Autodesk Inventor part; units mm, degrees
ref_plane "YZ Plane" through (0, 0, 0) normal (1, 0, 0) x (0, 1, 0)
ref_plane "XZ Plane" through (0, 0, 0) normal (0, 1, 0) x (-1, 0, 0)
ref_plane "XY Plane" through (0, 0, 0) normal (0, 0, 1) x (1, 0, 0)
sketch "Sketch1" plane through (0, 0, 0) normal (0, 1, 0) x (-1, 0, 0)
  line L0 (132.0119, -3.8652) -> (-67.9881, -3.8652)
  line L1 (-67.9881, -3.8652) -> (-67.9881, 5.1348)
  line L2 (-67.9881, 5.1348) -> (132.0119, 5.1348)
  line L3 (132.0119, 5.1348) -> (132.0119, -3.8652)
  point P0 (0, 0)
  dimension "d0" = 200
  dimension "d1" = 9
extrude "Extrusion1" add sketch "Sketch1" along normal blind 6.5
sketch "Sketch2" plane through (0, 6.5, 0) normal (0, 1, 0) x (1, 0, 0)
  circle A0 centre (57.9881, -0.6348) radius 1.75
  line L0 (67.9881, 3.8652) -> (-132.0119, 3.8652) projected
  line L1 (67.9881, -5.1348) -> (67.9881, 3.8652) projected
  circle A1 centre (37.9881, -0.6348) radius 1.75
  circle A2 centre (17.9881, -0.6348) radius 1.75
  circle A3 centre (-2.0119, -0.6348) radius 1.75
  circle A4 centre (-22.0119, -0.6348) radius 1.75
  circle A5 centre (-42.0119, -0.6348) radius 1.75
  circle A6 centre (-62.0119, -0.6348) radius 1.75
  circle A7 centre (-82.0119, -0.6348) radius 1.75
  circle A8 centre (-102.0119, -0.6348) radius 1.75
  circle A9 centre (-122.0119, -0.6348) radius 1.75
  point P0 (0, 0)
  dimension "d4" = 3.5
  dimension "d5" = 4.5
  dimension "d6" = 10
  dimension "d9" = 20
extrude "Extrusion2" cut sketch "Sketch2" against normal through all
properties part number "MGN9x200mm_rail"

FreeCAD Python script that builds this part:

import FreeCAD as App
import Part
import Sketcher
Q = App.Units.Quantity

doc = App.newDocument("Part")
body = doc.addObject("PartDesign::Body", "Body")

# Sketch on XZ plane
sketch1 = body.newObject("Sketcher::SketchObject", "Sketch")
sketch1.AttachmentSupport = (doc.getObject("XZ_Plane"), [""])
sketch1.MapMode = "FlatFace"
sketch1.addGeometry([
    Part.LineSegment(App.Vector(67.9881, -3.8652, 0), App.Vector(-132.0119, -3.8652, 0)),
    Part.LineSegment(App.Vector(-132.0119, -3.8652, 0), App.Vector(-132.0119, 5.1348, 0)),
    Part.LineSegment(App.Vector(-132.0119, 5.1348, 0), App.Vector(67.9881, 5.1348, 0)),
    Part.LineSegment(App.Vector(67.9881, 5.1348, 0), App.Vector(67.9881, -3.8652, 0)),
], False)
sketch1.addConstraint([
    Sketcher.Constraint("Coincident", 0, 2, 1, 1),
    Sketcher.Constraint("Coincident", 1, 2, 2, 1),
    Sketcher.Constraint("Coincident", 2, 2, 3, 1),
    Sketcher.Constraint("Coincident", 3, 2, 0, 1),
    Sketcher.Constraint("Horizontal", 0),
    Sketcher.Constraint("Vertical", 1),
    Sketcher.Constraint("Horizontal", 2),
    Sketcher.Constraint("Vertical", 3),
    Sketcher.Constraint("DistanceX", 0, 2, 0, 1, Q("200 mm")),
    Sketcher.Constraint("DistanceY", 1, 1, 1, 2, Q("9 mm")),
    Sketcher.Constraint("DistanceX", 0, 2, -1, 1, Q("132.012 mm")),
    Sketcher.Constraint("DistanceY", 0, 2, -1, 1, Q("3.8652 mm")),
])
pad1 = body.newObject("PartDesign::Pad", "Pad")
pad1.Profile = sketch1
pad1.Length = 6.5
pad1.Reversed = True

# Sketch on XZ plane
sketch2 = body.newObject("Sketcher::SketchObject", "Sketch001")
sketch2.AttachmentSupport = (doc.getObject("XZ_Plane"), [""])
sketch2.MapMode = "FlatFace"
sketch2.AttachmentOffset = App.Placement(App.Vector(0, 0, -6.5), App.Rotation())
sketch2.addGeometry([
    Part.Circle(App.Vector(57.9881, 0.6348, 0), App.Vector(0, 0, 1), 1.75),  # 0
    Part.Circle(App.Vector(37.9881, 0.6348, 0), App.Vector(0, 0, 1), 1.75),  # 1
    Part.Circle(App.Vector(17.9881, 0.6348, 0), App.Vector(0, 0, 1), 1.75),  # 2
    Part.Circle(App.Vector(-2.0119, 0.6348, 0), App.Vector(0, 0, 1), 1.75),  # 3
    Part.Circle(App.Vector(-22.0119, 0.6348, 0), App.Vector(0, 0, 1), 1.75),  # 4
    Part.Circle(App.Vector(-42.0119, 0.6348, 0), App.Vector(0, 0, 1), 1.75),  # 5
    Part.Circle(App.Vector(-62.0119, 0.6348, 0), App.Vector(0, 0, 1), 1.75),  # 6
    Part.Circle(App.Vector(-82.0119, 0.6348, 0), App.Vector(0, 0, 1), 1.75),  # 7
    Part.Circle(App.Vector(-102.0119, 0.6348, 0), App.Vector(0, 0, 1), 1.75),  # 8
    Part.Circle(App.Vector(-122.0119, 0.6348, 0), App.Vector(0, 0, 1), 1.75),  # 9
], False)
sketch2.addConstraint([
    Sketcher.Constraint("Equal", 0, 1),
    Sketcher.Constraint("Equal", 1, 2),
    Sketcher.Constraint("Equal", 2, 3),
    Sketcher.Constraint("Equal", 3, 4),
    Sketcher.Constraint("Equal", 4, 5),
    Sketcher.Constraint("Equal", 5, 6),
    Sketcher.Constraint("Equal", 6, 7),
    Sketcher.Constraint("Equal", 7, 8),
    Sketcher.Constraint("Equal", 8, 9),
    Sketcher.Constraint("Horizontal", 0, 3, 1, 3),
    Sketcher.Constraint("Horizontal", 1, 3, 2, 3),
    Sketcher.Constraint("Horizontal", 2, 3, 3, 3),
    Sketcher.Constraint("Horizontal", 3, 3, 4, 3),
    Sketcher.Constraint("Horizontal", 4, 3, 5, 3),
    Sketcher.Constraint("Horizontal", 5, 3, 6, 3),
    Sketcher.Constraint("Horizontal", 6, 3, 7, 3),
    Sketcher.Constraint("Horizontal", 7, 3, 8, 3),
    Sketcher.Constraint("Horizontal", 8, 3, 9, 3),
    Sketcher.Constraint("Diameter", 0, Q("3.5 mm")),
    Sketcher.Constraint("DistanceX", 1, 3, 0, 3, Q("20 mm")),
    Sketcher.Constraint("DistanceX", 2, 3, 1, 3, Q("20 mm")),
    Sketcher.Constraint("DistanceX", 3, 3, 2, 3, Q("20 mm")),
    Sketcher.Constraint("DistanceX", 4, 3, 3, 3, Q("20 mm")),
    Sketcher.Constraint("DistanceX", 5, 3, 4, 3, Q("20 mm")),
    Sketcher.Constraint("DistanceX", 6, 3, 5, 3, Q("20 mm")),
    Sketcher.Constraint("DistanceX", 7, 3, 6, 3, Q("20 mm")),
    Sketcher.Constraint("DistanceX", 8, 3, 7, 3, Q("20 mm")),
    Sketcher.Constraint("DistanceX", 9, 3, 8, 3, Q("20 mm")),
    Sketcher.Constraint("DistanceX", -1, 1, 0, 3, Q("57.988 mm")),
    Sketcher.Constraint("DistanceY", -1, 1, 0, 3, Q("0.6348 mm")),
])
pocket1 = body.newObject("PartDesign::Pocket", "Pocket")
pocket1.Profile = sketch2
pocket1.Type = "ThroughAll"
pocket1.Reversed = True

doc.recompute()
